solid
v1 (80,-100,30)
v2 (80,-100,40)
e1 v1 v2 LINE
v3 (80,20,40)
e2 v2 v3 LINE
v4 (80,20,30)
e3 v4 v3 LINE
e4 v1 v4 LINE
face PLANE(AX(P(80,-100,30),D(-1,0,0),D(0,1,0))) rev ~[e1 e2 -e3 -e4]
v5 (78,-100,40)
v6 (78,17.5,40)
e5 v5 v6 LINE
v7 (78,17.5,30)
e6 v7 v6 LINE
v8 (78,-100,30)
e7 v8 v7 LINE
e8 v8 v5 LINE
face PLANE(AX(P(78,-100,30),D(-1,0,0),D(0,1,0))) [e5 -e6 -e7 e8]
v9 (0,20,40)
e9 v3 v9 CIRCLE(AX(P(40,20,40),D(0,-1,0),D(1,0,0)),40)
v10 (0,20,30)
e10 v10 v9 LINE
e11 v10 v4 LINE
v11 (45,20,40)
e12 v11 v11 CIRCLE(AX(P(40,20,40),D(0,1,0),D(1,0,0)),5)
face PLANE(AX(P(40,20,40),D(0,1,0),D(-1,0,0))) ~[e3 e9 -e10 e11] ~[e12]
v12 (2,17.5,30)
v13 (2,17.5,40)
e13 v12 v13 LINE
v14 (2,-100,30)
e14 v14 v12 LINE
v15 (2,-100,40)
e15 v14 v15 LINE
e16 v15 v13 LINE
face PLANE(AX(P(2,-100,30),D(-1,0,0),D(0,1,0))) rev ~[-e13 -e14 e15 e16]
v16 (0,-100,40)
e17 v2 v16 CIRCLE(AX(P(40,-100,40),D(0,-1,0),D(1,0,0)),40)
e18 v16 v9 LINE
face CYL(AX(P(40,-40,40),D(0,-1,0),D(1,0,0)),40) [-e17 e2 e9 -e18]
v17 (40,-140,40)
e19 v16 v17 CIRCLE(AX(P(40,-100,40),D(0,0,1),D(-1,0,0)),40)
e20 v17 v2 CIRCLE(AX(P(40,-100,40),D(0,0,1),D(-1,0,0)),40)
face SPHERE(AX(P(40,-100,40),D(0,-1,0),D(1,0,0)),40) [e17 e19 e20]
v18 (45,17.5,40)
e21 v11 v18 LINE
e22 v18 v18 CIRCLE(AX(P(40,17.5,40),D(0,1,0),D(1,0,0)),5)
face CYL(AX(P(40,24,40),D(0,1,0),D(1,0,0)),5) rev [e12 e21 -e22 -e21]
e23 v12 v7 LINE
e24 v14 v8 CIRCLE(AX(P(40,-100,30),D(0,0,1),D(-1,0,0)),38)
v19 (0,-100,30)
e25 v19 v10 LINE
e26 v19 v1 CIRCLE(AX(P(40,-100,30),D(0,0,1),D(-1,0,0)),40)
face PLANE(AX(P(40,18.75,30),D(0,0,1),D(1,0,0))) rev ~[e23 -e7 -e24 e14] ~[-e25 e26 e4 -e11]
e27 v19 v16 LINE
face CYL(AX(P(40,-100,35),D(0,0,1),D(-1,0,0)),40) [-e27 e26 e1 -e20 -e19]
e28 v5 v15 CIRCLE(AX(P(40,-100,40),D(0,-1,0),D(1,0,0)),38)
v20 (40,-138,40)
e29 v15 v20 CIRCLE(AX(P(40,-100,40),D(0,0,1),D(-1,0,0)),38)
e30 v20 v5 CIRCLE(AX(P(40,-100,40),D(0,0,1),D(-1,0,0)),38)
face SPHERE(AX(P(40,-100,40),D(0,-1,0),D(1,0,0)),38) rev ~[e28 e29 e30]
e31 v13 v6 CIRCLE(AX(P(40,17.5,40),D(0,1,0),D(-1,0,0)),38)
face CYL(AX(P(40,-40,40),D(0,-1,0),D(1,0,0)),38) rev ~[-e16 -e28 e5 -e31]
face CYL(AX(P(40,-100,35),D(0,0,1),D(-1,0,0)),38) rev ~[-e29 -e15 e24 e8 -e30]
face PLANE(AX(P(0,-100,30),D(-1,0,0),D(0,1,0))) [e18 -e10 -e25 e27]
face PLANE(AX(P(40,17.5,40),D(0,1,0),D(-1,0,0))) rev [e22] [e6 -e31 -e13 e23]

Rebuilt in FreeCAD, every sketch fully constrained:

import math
import FreeCAD as App
import Part
import Sketcher

V = App.Vector

doc = App.newDocument("Part")
body = doc.addObject("PartDesign::Body", "Body")

# Sketch on XY plane
sketch1 = body.newObject("Sketcher::SketchObject", "Sketch")
sketch1.AttachmentSupport = (doc.getObject("XY_Plane"), [""])
sketch1.MapMode = "FlatFace"
sketch1.AttachmentOffset = App.Placement(V(0, 0, 40), App.Rotation())
sketch1.addGeometry([
    Part.LineSegment(V(40, -100, 0), V(40, 20, 0)),
    Part.LineSegment(V(40, 20, 0), V(78, 20, 0)),
    Part.LineSegment(V(78, 20, 0), V(78, -100, 0)),
    Part.LineSegment(V(78, -100, 0), V(40, -100, 0)),
], False)
sketch1.addGeometry(Part.LineSegment(V(40, 20, 0), V(40, -100, 0)), True)  # axis
sketch1.addConstraint([
    Sketcher.Constraint("Coincident", 0, 2, 1, 1),
    Sketcher.Constraint("Coincident", 1, 2, 2, 1),
    Sketcher.Constraint("Coincident", 2, 2, 3, 1),
    Sketcher.Constraint("Coincident", 3, 2, 0, 1),
    Sketcher.Constraint("Vertical", 0),
    Sketcher.Constraint("Horizontal", 1),
    Sketcher.Constraint("Vertical", 2),
    Sketcher.Constraint("Horizontal", 3),
    Sketcher.Constraint("Vertical", 4),
    Sketcher.Constraint("Coincident", 4, 1, 0, 2),
    Sketcher.Constraint("Horizontal", 2, 2, 4, 2),
    Sketcher.Constraint("DistanceX", 1, 1, 1, 2, 38.0),
    Sketcher.Constraint("DistanceY", 0, 1, 0, 2, 120.0),
    Sketcher.Constraint("DistanceX", -1, 1, 0, 2, 40.0),
    Sketcher.Constraint("DistanceY", -1, 1, 0, 2, 20.0),
])
revolution = body.newObject("PartDesign::Revolution", "Revolution")
revolution.Profile = sketch1
revolution.ReferenceAxis = (sketch1, ["Axis0"])
revolution.Angle = 180
body2 = doc.addObject("PartDesign::Body", "Body001")

# Sketch on XY plane
sketch2 = body2.newObject("Sketcher::SketchObject", "Sketch001")
sketch2.AttachmentSupport = (doc.getObject("XY_Plane001"), [""])
sketch2.MapMode = "FlatFace"
sketch2.AttachmentOffset = App.Placement(V(0, 0, 40), App.Rotation())
sketch2.addGeometry([
    Part.LineSegment(V(40, -100, 0), V(40, 20, 0)),
    Part.LineSegment(V(40, 20, 0), V(80, 20, 0)),
    Part.LineSegment(V(80, 20, 0), V(80, -100, 0)),
    Part.LineSegment(V(80, -100, 0), V(40, -100, 0)),
], False)
sketch2.addGeometry(Part.LineSegment(V(40, 20, 0), V(40, -100, 0)), True)  # axis
sketch2.addConstraint([
    Sketcher.Constraint("Coincident", 0, 2, 1, 1),
    Sketcher.Constraint("Coincident", 1, 2, 2, 1),
    Sketcher.Constraint("Coincident", 2, 2, 3, 1),
    Sketcher.Constraint("Coincident", 3, 2, 0, 1),
    Sketcher.Constraint("Vertical", 0),
    Sketcher.Constraint("Horizontal", 1),
    Sketcher.Constraint("Vertical", 2),
    Sketcher.Constraint("Horizontal", 3),
    Sketcher.Constraint("Vertical", 4),
    Sketcher.Constraint("Coincident", 4, 1, 0, 2),
    Sketcher.Constraint("Horizontal", 2, 2, 4, 2),
    Sketcher.Constraint("DistanceX", 1, 1, 1, 2, 40.0),
    Sketcher.Constraint("DistanceY", 0, 1, 0, 2, 120.0),
    Sketcher.Constraint("DistanceX", -1, 1, 0, 2, 40.0),
    Sketcher.Constraint("DistanceY", -1, 1, 0, 2, 20.0),
])
revolution2 = body2.newObject("PartDesign::Revolution", "Revolution001")
revolution2.Profile = sketch2
revolution2.ReferenceAxis = (sketch2, ["Axis0"])
revolution2.Angle = 180
doc.recompute()

boolean = body2.newObject("PartDesign::Boolean", "Boolean")
boolean.Type = "Cut"
boolean.addObjects([body])
body3 = doc.addObject("PartDesign::Body", "Body002")

# Sketch on XZ plane
sketch3 = body3.newObject("Sketcher::SketchObject", "Sketch002")
sketch3.AttachmentSupport = (doc.getObject("XZ_Plane002"), [""])
sketch3.MapMode = "FlatFace"
sketch3.AttachmentOffset = App.Placement(V(0, 0, 100), App.Rotation())
sketch3.addGeometry([
    Part.LineSegment(V(40, 40, 0), V(40, 30, 0)),
    Part.LineSegment(V(40, 30, 0), V(2, 30, 0)),
    Part.LineSegment(V(2, 30, 0), V(2, 40, 0)),
    Part.LineSegment(V(2, 40, 0), V(40, 40, 0)),
], False)
sketch3.addGeometry(Part.LineSegment(V(40, 30, 0), V(40, 40, 0)), True)  # axis
sketch3.addConstraint([
    Sketcher.Constraint("Coincident", 0, 2, 1, 1),
    Sketcher.Constraint("Coincident", 1, 2, 2, 1),
    Sketcher.Constraint("Coincident", 2, 2, 3, 1),
    Sketcher.Constraint("Coincident", 3, 2, 0, 1),
    Sketcher.Constraint("Vertical", 0),
    Sketcher.Constraint("Horizontal", 1),
    Sketcher.Constraint("Vertical", 2),
    Sketcher.Constraint("Horizontal", 3),
    Sketcher.Constraint("Vertical", 4),
    Sketcher.Constraint("Coincident", 4, 1, 0, 2),
    Sketcher.Constraint("Horizontal", 2, 2, 4, 2),
    Sketcher.Constraint("DistanceX", 1, 2, 1, 1, 38.0),
    Sketcher.Constraint("DistanceY", 0, 2, 0, 1, 10.0),
    Sketcher.Constraint("DistanceX", -1, 1, 0, 2, 40.0),
    Sketcher.Constraint("DistanceY", -1, 1, 0, 2, 30.0),
])
revolution3 = body3.newObject("PartDesign::Revolution", "Revolution002")
revolution3.Profile = sketch3
revolution3.ReferenceAxis = (sketch3, ["Axis0"])
revolution3.Angle = 180
body4 = doc.addObject("PartDesign::Body", "Body003")

# Sketch on XZ plane
sketch4 = body4.newObject("Sketcher::SketchObject", "Sketch003")
sketch4.AttachmentSupport = (doc.getObject("XZ_Plane003"), [""])
sketch4.MapMode = "FlatFace"
sketch4.AttachmentOffset = App.Placement(V(0, 0, 100), App.Rotation())
sketch4.addGeometry([
    Part.LineSegment(V(40, 40, 0), V(40, 30, 0)),
    Part.LineSegment(V(40, 30, 0), V(0, 30, 0)),
    Part.LineSegment(V(0, 30, 0), V(0, 40, 0)),
    Part.LineSegment(V(0, 40, 0), V(40, 40, 0)),
], False)
sketch4.addGeometry(Part.LineSegment(V(40, 30, 0), V(40, 40, 0)), True)  # axis
sketch4.addConstraint([
    Sketcher.Constraint("Coincident", 0, 2, 1, 1),
    Sketcher.Constraint("Coincident", 1, 2, 2, 1),
    Sketcher.Constraint("Coincident", 2, 2, 3, 1),
    Sketcher.Constraint("Coincident", 3, 2, 0, 1),
    Sketcher.Constraint("Vertical", 0),
    Sketcher.Constraint("Horizontal", 1),
    Sketcher.Constraint("Vertical", 2),
    Sketcher.Constraint("Horizontal", 3),
    Sketcher.Constraint("Vertical", 4),
    Sketcher.Constraint("Coincident", 4, 1, 0, 2),
    Sketcher.Constraint("PointOnObject", 1, 2, -2),
    Sketcher.Constraint("Horizontal", 2, 2, 4, 2),
    Sketcher.Constraint("DistanceX", 1, 2, 1, 1, 40.0),
    Sketcher.Constraint("DistanceY", 0, 2, 0, 1, 10.0),
    Sketcher.Constraint("DistanceY", -1, 1, 0, 2, 30.0),
])
revolution4 = body4.newObject("PartDesign::Revolution", "Revolution003")
revolution4.Profile = sketch4
revolution4.ReferenceAxis = (sketch4, ["Axis0"])
revolution4.Angle = 180
doc.recompute()

boolean2 = body4.newObject("PartDesign::Boolean", "Boolean001")
boolean2.Type = "Cut"
boolean2.addObjects([body3])
body5 = doc.addObject("PartDesign::Body", "Body004")

# Sketch on XY plane
sketch5 = body5.newObject("Sketcher::SketchObject", "Sketch004")
sketch5.AttachmentSupport = (doc.getObject("XY_Plane004"), [""])
sketch5.MapMode = "FlatFace"
sketch5.AttachmentOffset = App.Placement(V(0, 0, 40), App.Rotation())
sketch5.addGeometry([
    Part.LineSegment(V(40, -100, 0), V(40, 20, 0)),
    Part.LineSegment(V(40, 20, 0), V(80, 20, 0)),
    Part.LineSegment(V(80, 20, 0), V(80, -100, 0)),
    Part.LineSegment(V(80, -100, 0), V(40, -100, 0)),
], False)
sketch5.addGeometry(Part.LineSegment(V(40, 20, 0), V(40, -100, 0)), True)  # axis
sketch5.addConstraint([
    Sketcher.Constraint("Coincident", 0, 2, 1, 1),
    Sketcher.Constraint("Coincident", 1, 2, 2, 1),
    Sketcher.Constraint("Coincident", 2, 2, 3, 1),
    Sketcher.Constraint("Coincident", 3, 2, 0, 1),
    Sketcher.Constraint("Vertical", 0),
    Sketcher.Constraint("Horizontal", 1),
    Sketcher.Constraint("Vertical", 2),
    Sketcher.Constraint("Horizontal", 3),
    Sketcher.Constraint("Vertical", 4),
    Sketcher.Constraint("Coincident", 4, 1, 0, 2),
    Sketcher.Constraint("Horizontal", 2, 2, 4, 2),
    Sketcher.Constraint("DistanceX", 1, 1, 1, 2, 40.0),
    Sketcher.Constraint("DistanceY", 0, 1, 0, 2, 120.0),
    Sketcher.Constraint("DistanceX", -1, 1, 0, 2, 40.0),
    Sketcher.Constraint("DistanceY", -1, 1, 0, 2, 20.0),
])
revolution5 = body5.newObject("PartDesign::Revolution", "Revolution004")
revolution5.Profile = sketch5
revolution5.ReferenceAxis = (sketch5, ["Axis0"])
revolution5.Angle = 180
body6 = doc.addObject("PartDesign::Body", "Body005")

# Sketch on XY plane
sketch6 = body6.newObject("Sketcher::SketchObject", "Sketch005")
sketch6.AttachmentSupport = (doc.getObject("XY_Plane005"), [""])
sketch6.MapMode = "FlatFace"
sketch6.AttachmentOffset = App.Placement(V(0, 0, 40), App.Rotation())
sketch6.addGeometry([
    Part.ArcOfCircle(Part.Circle(V(40, -100, 0), V(0, 0, 1), 38), math.radians(-90), math.radians(90)),
    Part.LineSegment(V(40, -138, 0), V(40, -62, 0)),
], False)
sketch6.addGeometry(Part.LineSegment(V(40, -62, 0), V(40, -138, 0)), True)  # axis
sketch6.addConstraint([
    Sketcher.Constraint("Coincident", 0, 1, 1, 1),
    Sketcher.Constraint("Coincident", 1, 2, 0, 2),
    Sketcher.Constraint("Vertical", 1),
    Sketcher.Constraint("Vertical", 2),
    Sketcher.Constraint("Coincident", 2, 1, 1, 2),
    Sketcher.Constraint("Equal", 1, 2),
    Sketcher.Constraint("Radius", 0, 38.0),
    Sketcher.Constraint("DistanceX", -1, 1, 0, 3, 40.0),
    Sketcher.Constraint("DistanceY", 0, 3, -1, 1, 100.0),
    Sketcher.Constraint("DistanceX", -1, 1, 0, 1, 40.0),
])
revolution6 = body6.newObject("PartDesign::Revolution", "Revolution005")
revolution6.Profile = sketch6
revolution6.ReferenceAxis = (sketch6, ["Axis0"])
revolution6.Angle = 180
body7 = doc.addObject("PartDesign::Body", "Body006")

# Sketch on XY plane
sketch7 = body7.newObject("Sketcher::SketchObject", "Sketch006")
sketch7.AttachmentSupport = (doc.getObject("XY_Plane006"), [""])
sketch7.MapMode = "FlatFace"
sketch7.AttachmentOffset = App.Placement(V(0, 0, 40), App.Rotation())
sketch7.addGeometry([
    Part.ArcOfCircle(Part.Circle(V(40, -100, 0), V(0, 0, 1), 40), math.radians(-90), math.radians(90)),
    Part.LineSegment(V(40, -140, 0), V(40, -60, 0)),
], False)
sketch7.addGeometry(Part.LineSegment(V(40, -60, 0), V(40, -140, 0)), True)  # axis
sketch7.addConstraint([
    Sketcher.Constraint("Coincident", 0, 1, 1, 1),
    Sketcher.Constraint("Coincident", 1, 2, 0, 2),
    Sketcher.Constraint("Vertical", 1),
    Sketcher.Constraint("Vertical", 2),
    Sketcher.Constraint("Coincident", 2, 1, 1, 2),
    Sketcher.Constraint("Equal", 1, 2),
    Sketcher.Constraint("Radius", 0, 40.0),
    Sketcher.Constraint("DistanceX", -1, 1, 0, 3, 40.0),
    Sketcher.Constraint("DistanceY", 0, 3, -1, 1, 100.0),
    Sketcher.Constraint("DistanceX", -1, 1, 0, 1, 40.0),
])
revolution7 = body7.newObject("PartDesign::Revolution", "Revolution006")
revolution7.Profile = sketch7
revolution7.ReferenceAxis = (sketch7, ["Axis0"])
revolution7.Angle = 180
doc.recompute()

boolean3 = body7.newObject("PartDesign::Boolean", "Boolean002")
boolean3.Type = "Cut"
boolean3.addObjects([body6])
doc.recompute()

boolean4 = body7.newObject("PartDesign::Boolean", "Boolean003")
boolean4.Type = "Cut"
boolean4.addObjects([body5])
body8 = doc.addObject("PartDesign::Body", "Body007")

# Sketch on XZ plane
sketch8 = body8.newObject("Sketcher::SketchObject", "Sketch007")
sketch8.AttachmentSupport = (doc.getObject("XZ_Plane007"), [""])
sketch8.MapMode = "FlatFace"
sketch8.AttachmentOffset = App.Placement(V(0, 0, -24), App.Rotation())
sketch8.addGeometry(Part.Circle(V(40, 40, 0), V(0, 0, 1), 5), False)
sketch8.addConstraint([
    Sketcher.Constraint("Diameter", 0, 10.0),
    Sketcher.Constraint("DistanceX", -1, 1, 0, 3, 40.0),
    Sketcher.Constraint("DistanceY", -1, 1, 0, 3, 40.0),
])
pad1 = body8.newObject("PartDesign::Pad", "Pad")
pad1.Profile = sketch8
pad1.Length = 17
body9 = doc.addObject("PartDesign::Body", "Body008")

# Sketch on XY plane
sketch9 = body9.newObject("Sketcher::SketchObject", "Sketch008")
sketch9.AttachmentSupport = (doc.getObject("XY_Plane008"), [""])
sketch9.MapMode = "FlatFace"
sketch9.AttachmentOffset = App.Placement(V(0, 0, 40), App.Rotation())
sketch9.addGeometry([
    Part.LineSegment(V(40, 20, 0), V(40, 17.5, 0)),
    Part.LineSegment(V(40, 17.5, 0), V(2, 17.5, 0)),
    Part.LineSegment(V(2, 17.5, 0), V(2, 20, 0)),
    Part.LineSegment(V(2, 20, 0), V(40, 20, 0)),
], False)
sketch9.addGeometry(Part.LineSegment(V(40, 17.5, 0), V(40, 20, 0)), True)  # axis
sketch9.addConstraint([
    Sketcher.Constraint("Coincident", 0, 2, 1, 1),
    Sketcher.Constraint("Coincident", 1, 2, 2, 1),
    Sketcher.Constraint("Coincident", 2, 2, 3, 1),
    Sketcher.Constraint("Coincident", 3, 2, 0, 1),
    Sketcher.Constraint("Vertical", 0),
    Sketcher.Constraint("Horizontal", 1),
    Sketcher.Constraint("Vertical", 2),
    Sketcher.Constraint("Horizontal", 3),
    Sketcher.Constraint("Vertical", 4),
    Sketcher.Constraint("Coincident", 4, 1, 0, 2),
    Sketcher.Constraint("Horizontal", 2, 2, 4, 2),
    Sketcher.Constraint("DistanceX", 1, 2, 1, 1, 38.0),
    Sketcher.Constraint("DistanceY", 0, 2, 0, 1, 2.5),
    Sketcher.Constraint("DistanceX", -1, 1, 0, 2, 40.0),
    Sketcher.Constraint("DistanceY", -1, 1, 2, 2, 20.0),
])
revolution8 = body9.newObject("PartDesign::Revolution", "Revolution007")
revolution8.Profile = sketch9
revolution8.ReferenceAxis = (sketch9, ["Axis0"])
revolution8.Angle = 180
body10 = doc.addObject("PartDesign::Body", "Body009")

# Sketch on XY plane
sketch10 = body10.newObject("Sketcher::SketchObject", "Sketch009")
sketch10.AttachmentSupport = (doc.getObject("XY_Plane009"), [""])
sketch10.MapMode = "FlatFace"
sketch10.AttachmentOffset = App.Placement(V(0, 0, 30), App.Rotation())
sketch10.addGeometry([
    Part.LineSegment(V(2, 20, 0), V(2, 17.5, 0)),
    Part.LineSegment(V(2, 17.5, 0), V(78, 17.5, 0)),
    Part.LineSegment(V(78, 17.5, 0), V(78, 20, 0)),
    Part.LineSegment(V(78, 20, 0), V(2, 20, 0)),
], False)
sketch10.addConstraint([
    Sketcher.Constraint("Coincident", 0, 2, 1, 1),
    Sketcher.Constraint("Coincident", 1, 2, 2, 1),
    Sketcher.Constraint("Coincident", 2, 2, 3, 1),
    Sketcher.Constraint("Coincident", 3, 2, 0, 1),
    Sketcher.Constraint("Vertical", 0),
    Sketcher.Constraint("Horizontal", 1),
    Sketcher.Constraint("Vertical", 2),
    Sketcher.Constraint("Horizontal", 3),
    Sketcher.Constraint("DistanceX", 1, 1, 1, 2, 76.0),
    Sketcher.Constraint("DistanceY", 0, 2, 0, 1, 2.5),
    Sketcher.Constraint("DistanceX", -1, 1, 0, 2, 2.0),
    Sketcher.Constraint("DistanceY", -1, 1, 2, 2, 20.0),
])
pad2 = body10.newObject("PartDesign::Pad", "Pad001")
pad2.Profile = sketch10
pad2.Length = 10
doc.recompute()

boolean5 = body10.newObject("PartDesign::Boolean", "Boolean004")
boolean5.Type = "Fuse"
boolean5.addObjects([body9])
doc.recompute()

boolean6 = body10.newObject("PartDesign::Boolean", "Boolean005")
boolean6.Type = "Cut"
boolean6.addObjects([body8])
body11 = doc.addObject("PartDesign::Body", "Body010")

# Sketch on XY plane
sketch11 = body11.newObject("Sketcher::SketchObject", "Sketch010")
sketch11.AttachmentSupport = (doc.getObject("XY_Plane010"), [""])
sketch11.MapMode = "FlatFace"
sketch11.AttachmentOffset = App.Placement(V(0, 0, 30), App.Rotation())
sketch11.addGeometry([
    Part.LineSegment(V(2, 20, 0), V(2, -100, 0)),
    Part.LineSegment(V(2, -100, 0), V(78, -100, 0)),
    Part.LineSegment(V(78, -100, 0), V(78, 20, 0)),
    Part.LineSegment(V(78, 20, 0), V(2, 20, 0)),
], False)
sketch11.addConstraint([
    Sketcher.Constraint("Coincident", 0, 2, 1, 1),
    Sketcher.Constraint("Coincident", 1, 2, 2, 1),
    Sketcher.Constraint("Coincident", 2, 2, 3, 1),
    Sketcher.Constraint("Coincident", 3, 2, 0, 1),
    Sketcher.Constraint("Vertical", 0),
    Sketcher.Constraint("Horizontal", 1),
    Sketcher.Constraint("Vertical", 2),
    Sketcher.Constraint("Horizontal", 3),
    Sketcher.Constraint("DistanceX", 1, 1, 1, 2, 76.0),
    Sketcher.Constraint("DistanceY", 0, 2, 0, 1, 120.0),
    Sketcher.Constraint("DistanceX", -1, 1, 0, 2, 2.0),
    Sketcher.Constraint("DistanceY", 0, 2, -1, 1, 100.0),
])
pad3 = body11.newObject("PartDesign::Pad", "Pad002")
pad3.Profile = sketch11
pad3.Length = 10
body12 = doc.addObject("PartDesign::Body", "Body011")
body12.AllowCompound = True

# Sketch on XY plane
sketch12 = body12.newObject("Sketcher::SketchObject", "Sketch011")
sketch12.AttachmentSupport = (doc.getObject("XY_Plane011"), [""])
sketch12.MapMode = "FlatFace"
sketch12.AttachmentOffset = App.Placement(V(0, 0, 30), App.Rotation())
sketch12.addGeometry([
    Part.LineSegment(V(0, 20, 0), V(0, -100, 0)),
    Part.LineSegment(V(0, -100, 0), V(80, -100, 0)),
    Part.LineSegment(V(80, -100, 0), V(80, 20, 0)),
    Part.LineSegment(V(80, 20, 0), V(0, 20, 0)),
], False)
sketch12.addConstraint([
    Sketcher.Constraint("Coincident", 0, 2, 1, 1),
    Sketcher.Constraint("Coincident", 1, 2, 2, 1),
    Sketcher.Constraint("Coincident", 2, 2, 3, 1),
    Sketcher.Constraint("Coincident", 3, 2, 0, 1),
    Sketcher.Constraint("Vertical", 0),
    Sketcher.Constraint("Horizontal", 1),
    Sketcher.Constraint("Vertical", 2),
    Sketcher.Constraint("Horizontal", 3),
    Sketcher.Constraint("PointOnObject", 0, 2, -2),
    Sketcher.Constraint("DistanceX", 1, 1, 1, 2, 80.0),
    Sketcher.Constraint("DistanceY", 0, 2, 0, 1, 120.0),
    Sketcher.Constraint("DistanceY", 0, 2, -1, 1, 100.0),
])
pad4 = body12.newObject("PartDesign::Pad", "Pad003")
pad4.Profile = sketch12
pad4.Length = 10
doc.recompute()

boolean7 = body12.newObject("PartDesign::Boolean", "Boolean006")
boolean7.Type = "Cut"
boolean7.addObjects([body11])
doc.recompute()

boolean8 = body12.newObject("PartDesign::Boolean", "Boolean007")
boolean8.Type = "Fuse"
boolean8.addObjects([body2])
doc.recompute()

boolean9 = body12.newObject("PartDesign::Boolean", "Boolean008")
boolean9.Type = "Fuse"
boolean9.addObjects([body4])
doc.recompute()

boolean10 = body12.newObject("PartDesign::Boolean", "Boolean009")
boolean10.Type = "Fuse"
boolean10.addObjects([body7])
doc.recompute()

boolean11 = body12.newObject("PartDesign::Boolean", "Boolean010")
boolean11.Type = "Fuse"
boolean11.addObjects([body10])

doc.recompute()
